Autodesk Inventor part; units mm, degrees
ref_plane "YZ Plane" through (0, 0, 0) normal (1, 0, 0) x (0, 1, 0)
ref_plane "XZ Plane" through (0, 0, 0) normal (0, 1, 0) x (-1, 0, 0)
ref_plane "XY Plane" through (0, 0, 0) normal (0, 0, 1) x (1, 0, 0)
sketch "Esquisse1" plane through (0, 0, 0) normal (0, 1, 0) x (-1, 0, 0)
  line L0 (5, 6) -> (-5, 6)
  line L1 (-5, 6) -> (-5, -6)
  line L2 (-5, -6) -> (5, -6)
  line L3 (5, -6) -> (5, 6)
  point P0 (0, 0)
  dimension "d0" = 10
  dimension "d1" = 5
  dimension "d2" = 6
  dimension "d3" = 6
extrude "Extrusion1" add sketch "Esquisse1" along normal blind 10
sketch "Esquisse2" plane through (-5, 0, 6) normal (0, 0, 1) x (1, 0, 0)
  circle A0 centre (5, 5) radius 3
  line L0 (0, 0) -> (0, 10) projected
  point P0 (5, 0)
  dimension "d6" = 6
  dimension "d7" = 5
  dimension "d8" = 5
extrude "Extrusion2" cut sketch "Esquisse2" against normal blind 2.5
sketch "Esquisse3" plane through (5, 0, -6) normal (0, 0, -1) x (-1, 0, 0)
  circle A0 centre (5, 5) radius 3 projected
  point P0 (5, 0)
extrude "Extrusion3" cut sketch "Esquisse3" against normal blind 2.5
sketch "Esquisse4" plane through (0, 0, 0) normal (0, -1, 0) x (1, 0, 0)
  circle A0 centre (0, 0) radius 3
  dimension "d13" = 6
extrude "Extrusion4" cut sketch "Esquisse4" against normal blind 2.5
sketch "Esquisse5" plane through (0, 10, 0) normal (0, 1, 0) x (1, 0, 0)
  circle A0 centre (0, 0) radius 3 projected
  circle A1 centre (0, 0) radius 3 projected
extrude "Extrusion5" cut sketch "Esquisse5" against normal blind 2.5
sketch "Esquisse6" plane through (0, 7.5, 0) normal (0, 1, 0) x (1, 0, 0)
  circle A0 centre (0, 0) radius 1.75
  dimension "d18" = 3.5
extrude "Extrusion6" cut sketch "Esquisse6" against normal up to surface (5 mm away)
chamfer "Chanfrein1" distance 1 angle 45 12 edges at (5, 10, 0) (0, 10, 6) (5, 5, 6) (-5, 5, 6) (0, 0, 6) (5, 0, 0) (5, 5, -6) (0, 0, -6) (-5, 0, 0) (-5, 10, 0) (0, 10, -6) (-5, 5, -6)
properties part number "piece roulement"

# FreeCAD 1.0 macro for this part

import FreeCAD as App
import Part
import Sketcher
Q = App.Units.Quantity


def edges_at(feature, points):
    """Names of the edges that pass closest to the given points."""
    edges = feature.Shape.Edges
    near = lambda p: min(range(len(edges)), key=lambda i: edges[i].distToShape(Part.Vertex(*p))[0])
    return sorted({f"Edge{near(p) + 1}" for p in points})

doc = App.newDocument("Part")
body = doc.addObject("PartDesign::Body", "Body")

# Sketch on XZ plane
sketch1 = body.newObject("Sketcher::SketchObject", "Sketch")
sketch1.AttachmentSupport = (doc.getObject("XZ_Plane"), [""])
sketch1.MapMode = "FlatFace"
sketch1.addGeometry(Part.LineSegment(App.Vector(-5, -6, 0), App.Vector(-5, 6, 0)), False)
sketch1.addGeometry(Part.LineSegment(App.Vector(-5, 6, 0), App.Vector(5, 6, 0)), False)
sketch1.addGeometry(Part.LineSegment(App.Vector(5, 6, 0), App.Vector(5, -6, 0)), False)
sketch1.addGeometry(Part.LineSegment(App.Vector(5, -6, 0), App.Vector(-5, -6, 0)), False)
sketch1.addConstraint(Sketcher.Constraint("Coincident", 0, 2, 1, 1))
sketch1.addConstraint(Sketcher.Constraint("Coincident", 1, 2, 2, 1))
sketch1.addConstraint(Sketcher.Constraint("Coincident", 2, 2, 3, 1))
sketch1.addConstraint(Sketcher.Constraint("Coincident", 3, 2, 0, 1))
sketch1.addConstraint(Sketcher.Constraint("Vertical", 0))
sketch1.addConstraint(Sketcher.Constraint("Horizontal", 1))
sketch1.addConstraint(Sketcher.Constraint("Vertical", 2))
sketch1.addConstraint(Sketcher.Constraint("Horizontal", 3))
sketch1.addConstraint(Sketcher.Constraint("Symmetric", 0, 2, 2, 2, -1, 1))
sketch1.addConstraint(Sketcher.Constraint("DistanceX", 1, 1, 1, 2, Q("10 mm")))
sketch1.addConstraint(Sketcher.Constraint("DistanceY", -1, 1, 0, 2, Q("6 mm")))
pad1 = body.newObject("PartDesign::Pad", "Pad")
pad1.Profile = sketch1
pad1.Length = 10
pad1.Reversed = True

# Sketch on XY plane
sketch2 = body.newObject("Sketcher::SketchObject", "Sketch001")
sketch2.AttachmentSupport = (doc.getObject("XY_Plane"), [""])
sketch2.MapMode = "FlatFace"
sketch2.AttachmentOffset = App.Placement(App.Vector(0, 0, 6), App.Rotation())
sketch2.addGeometry(Part.Circle(App.Vector(0, 5, 0), App.Vector(0, 0, 1), 3), False)
sketch2.addConstraint(Sketcher.Constraint("PointOnObject", 0, 3, -2))
sketch2.addConstraint(Sketcher.Constraint("Diameter", 0, Q("6 mm")))
sketch2.addConstraint(Sketcher.Constraint("DistanceY", -1, 1, 0, 3, Q("5 mm")))
pocket1 = body.newObject("PartDesign::Pocket", "Pocket")
pocket1.Profile = sketch2
pocket1.Length = 2.5

# Sketch on XY plane
sketch3 = body.newObject("Sketcher::SketchObject", "Sketch002")
sketch3.AttachmentSupport = (doc.getObject("XY_Plane"), [""])
sketch3.MapMode = "FlatFace"
sketch3.AttachmentOffset = App.Placement(App.Vector(0, 0, -6), App.Rotation())
sketch3.addGeometry(Part.Circle(App.Vector(0, 5, 0), App.Vector(0, 0, 1), 3), False)
sketch3.addConstraint(Sketcher.Constraint("PointOnObject", 0, 3, -2))
sketch3.addConstraint(Sketcher.Constraint("Diameter", 0, Q("6 mm")))
sketch3.addConstraint(Sketcher.Constraint("DistanceY", -1, 1, 0, 3, Q("5 mm")))
pocket2 = body.newObject("PartDesign::Pocket", "Pocket001")
pocket2.Profile = sketch3
pocket2.Length = 2.5
pocket2.Reversed = True

# Sketch on XZ plane
sketch4 = body.newObject("Sketcher::SketchObject", "Sketch003")
sketch4.AttachmentSupport = (doc.getObject("XZ_Plane"), [""])
sketch4.MapMode = "FlatFace"
sketch4.addGeometry(Part.Circle(App.Vector(0, 0, 0), App.Vector(0, 0, 1), 3), False)
sketch4.addConstraint(Sketcher.Constraint("Coincident", 0, 3, -1, 1))
sketch4.addConstraint(Sketcher.Constraint("Diameter", 0, Q("6 mm")))
pocket3 = body.newObject("PartDesign::Pocket", "Pocket002")
pocket3.Profile = sketch4
pocket3.Length = 2.5

# Sketch on XZ plane
sketch5 = body.newObject("Sketcher::SketchObject", "Sketch004")
sketch5.AttachmentSupport = (doc.getObject("XZ_Plane"), [""])
sketch5.MapMode = "FlatFace"
sketch5.AttachmentOffset = App.Placement(App.Vector(0, 0, -10), App.Rotation())
sketch5.addGeometry(Part.Circle(App.Vector(0, 0, 0), App.Vector(0, 0, 1), 3), False)
sketch5.addConstraint(Sketcher.Constraint("Coincident", 0, 3, -1, 1))
sketch5.addConstraint(Sketcher.Constraint("Diameter", 0, Q("6 mm")))
pocket4 = body.newObject("PartDesign::Pocket", "Pocket003")
pocket4.Profile = sketch5
pocket4.Length = 2.5
pocket4.Reversed = True

# Sketch on XZ plane
sketch6 = body.newObject("Sketcher::SketchObject", "Sketch005")
sketch6.AttachmentSupport = (doc.getObject("XZ_Plane"), [""])
sketch6.MapMode = "FlatFace"
sketch6.AttachmentOffset = App.Placement(App.Vector(0, 0, -7.5), App.Rotation())
sketch6.addGeometry(Part.Circle(App.Vector(0, 0, 0), App.Vector(0, 0, 1), 1.75), False)
sketch6.addConstraint(Sketcher.Constraint("Coincident", 0, 3, -1, 1))
sketch6.addConstraint(Sketcher.Constraint("Diameter", 0, Q("3.5 mm")))
pocket5 = body.newObject("PartDesign::Pocket", "Pocket004")
pocket5.Profile = sketch6
pocket5.Length = 5
pocket5.Reversed = True
doc.recompute()

chamfer = body.newObject("PartDesign::Chamfer", "Chamfer")
chamfer.Base = (pocket5, edges_at(pocket5, [
    (5, 10, 0),
    (0, 10, 6),
    (5, 5, 6),
    (-5, 5, 6),
    (0, 0, 6),
    (5, 0, 0),
    (5, 5, -6),
    (0, 0, -6),
    (-5, 0, 0),
    (-5, 10, 0),
    (0, 10, -6),
    (-5, 5, -6),
]))
chamfer.Size = 1

doc.recompute()
